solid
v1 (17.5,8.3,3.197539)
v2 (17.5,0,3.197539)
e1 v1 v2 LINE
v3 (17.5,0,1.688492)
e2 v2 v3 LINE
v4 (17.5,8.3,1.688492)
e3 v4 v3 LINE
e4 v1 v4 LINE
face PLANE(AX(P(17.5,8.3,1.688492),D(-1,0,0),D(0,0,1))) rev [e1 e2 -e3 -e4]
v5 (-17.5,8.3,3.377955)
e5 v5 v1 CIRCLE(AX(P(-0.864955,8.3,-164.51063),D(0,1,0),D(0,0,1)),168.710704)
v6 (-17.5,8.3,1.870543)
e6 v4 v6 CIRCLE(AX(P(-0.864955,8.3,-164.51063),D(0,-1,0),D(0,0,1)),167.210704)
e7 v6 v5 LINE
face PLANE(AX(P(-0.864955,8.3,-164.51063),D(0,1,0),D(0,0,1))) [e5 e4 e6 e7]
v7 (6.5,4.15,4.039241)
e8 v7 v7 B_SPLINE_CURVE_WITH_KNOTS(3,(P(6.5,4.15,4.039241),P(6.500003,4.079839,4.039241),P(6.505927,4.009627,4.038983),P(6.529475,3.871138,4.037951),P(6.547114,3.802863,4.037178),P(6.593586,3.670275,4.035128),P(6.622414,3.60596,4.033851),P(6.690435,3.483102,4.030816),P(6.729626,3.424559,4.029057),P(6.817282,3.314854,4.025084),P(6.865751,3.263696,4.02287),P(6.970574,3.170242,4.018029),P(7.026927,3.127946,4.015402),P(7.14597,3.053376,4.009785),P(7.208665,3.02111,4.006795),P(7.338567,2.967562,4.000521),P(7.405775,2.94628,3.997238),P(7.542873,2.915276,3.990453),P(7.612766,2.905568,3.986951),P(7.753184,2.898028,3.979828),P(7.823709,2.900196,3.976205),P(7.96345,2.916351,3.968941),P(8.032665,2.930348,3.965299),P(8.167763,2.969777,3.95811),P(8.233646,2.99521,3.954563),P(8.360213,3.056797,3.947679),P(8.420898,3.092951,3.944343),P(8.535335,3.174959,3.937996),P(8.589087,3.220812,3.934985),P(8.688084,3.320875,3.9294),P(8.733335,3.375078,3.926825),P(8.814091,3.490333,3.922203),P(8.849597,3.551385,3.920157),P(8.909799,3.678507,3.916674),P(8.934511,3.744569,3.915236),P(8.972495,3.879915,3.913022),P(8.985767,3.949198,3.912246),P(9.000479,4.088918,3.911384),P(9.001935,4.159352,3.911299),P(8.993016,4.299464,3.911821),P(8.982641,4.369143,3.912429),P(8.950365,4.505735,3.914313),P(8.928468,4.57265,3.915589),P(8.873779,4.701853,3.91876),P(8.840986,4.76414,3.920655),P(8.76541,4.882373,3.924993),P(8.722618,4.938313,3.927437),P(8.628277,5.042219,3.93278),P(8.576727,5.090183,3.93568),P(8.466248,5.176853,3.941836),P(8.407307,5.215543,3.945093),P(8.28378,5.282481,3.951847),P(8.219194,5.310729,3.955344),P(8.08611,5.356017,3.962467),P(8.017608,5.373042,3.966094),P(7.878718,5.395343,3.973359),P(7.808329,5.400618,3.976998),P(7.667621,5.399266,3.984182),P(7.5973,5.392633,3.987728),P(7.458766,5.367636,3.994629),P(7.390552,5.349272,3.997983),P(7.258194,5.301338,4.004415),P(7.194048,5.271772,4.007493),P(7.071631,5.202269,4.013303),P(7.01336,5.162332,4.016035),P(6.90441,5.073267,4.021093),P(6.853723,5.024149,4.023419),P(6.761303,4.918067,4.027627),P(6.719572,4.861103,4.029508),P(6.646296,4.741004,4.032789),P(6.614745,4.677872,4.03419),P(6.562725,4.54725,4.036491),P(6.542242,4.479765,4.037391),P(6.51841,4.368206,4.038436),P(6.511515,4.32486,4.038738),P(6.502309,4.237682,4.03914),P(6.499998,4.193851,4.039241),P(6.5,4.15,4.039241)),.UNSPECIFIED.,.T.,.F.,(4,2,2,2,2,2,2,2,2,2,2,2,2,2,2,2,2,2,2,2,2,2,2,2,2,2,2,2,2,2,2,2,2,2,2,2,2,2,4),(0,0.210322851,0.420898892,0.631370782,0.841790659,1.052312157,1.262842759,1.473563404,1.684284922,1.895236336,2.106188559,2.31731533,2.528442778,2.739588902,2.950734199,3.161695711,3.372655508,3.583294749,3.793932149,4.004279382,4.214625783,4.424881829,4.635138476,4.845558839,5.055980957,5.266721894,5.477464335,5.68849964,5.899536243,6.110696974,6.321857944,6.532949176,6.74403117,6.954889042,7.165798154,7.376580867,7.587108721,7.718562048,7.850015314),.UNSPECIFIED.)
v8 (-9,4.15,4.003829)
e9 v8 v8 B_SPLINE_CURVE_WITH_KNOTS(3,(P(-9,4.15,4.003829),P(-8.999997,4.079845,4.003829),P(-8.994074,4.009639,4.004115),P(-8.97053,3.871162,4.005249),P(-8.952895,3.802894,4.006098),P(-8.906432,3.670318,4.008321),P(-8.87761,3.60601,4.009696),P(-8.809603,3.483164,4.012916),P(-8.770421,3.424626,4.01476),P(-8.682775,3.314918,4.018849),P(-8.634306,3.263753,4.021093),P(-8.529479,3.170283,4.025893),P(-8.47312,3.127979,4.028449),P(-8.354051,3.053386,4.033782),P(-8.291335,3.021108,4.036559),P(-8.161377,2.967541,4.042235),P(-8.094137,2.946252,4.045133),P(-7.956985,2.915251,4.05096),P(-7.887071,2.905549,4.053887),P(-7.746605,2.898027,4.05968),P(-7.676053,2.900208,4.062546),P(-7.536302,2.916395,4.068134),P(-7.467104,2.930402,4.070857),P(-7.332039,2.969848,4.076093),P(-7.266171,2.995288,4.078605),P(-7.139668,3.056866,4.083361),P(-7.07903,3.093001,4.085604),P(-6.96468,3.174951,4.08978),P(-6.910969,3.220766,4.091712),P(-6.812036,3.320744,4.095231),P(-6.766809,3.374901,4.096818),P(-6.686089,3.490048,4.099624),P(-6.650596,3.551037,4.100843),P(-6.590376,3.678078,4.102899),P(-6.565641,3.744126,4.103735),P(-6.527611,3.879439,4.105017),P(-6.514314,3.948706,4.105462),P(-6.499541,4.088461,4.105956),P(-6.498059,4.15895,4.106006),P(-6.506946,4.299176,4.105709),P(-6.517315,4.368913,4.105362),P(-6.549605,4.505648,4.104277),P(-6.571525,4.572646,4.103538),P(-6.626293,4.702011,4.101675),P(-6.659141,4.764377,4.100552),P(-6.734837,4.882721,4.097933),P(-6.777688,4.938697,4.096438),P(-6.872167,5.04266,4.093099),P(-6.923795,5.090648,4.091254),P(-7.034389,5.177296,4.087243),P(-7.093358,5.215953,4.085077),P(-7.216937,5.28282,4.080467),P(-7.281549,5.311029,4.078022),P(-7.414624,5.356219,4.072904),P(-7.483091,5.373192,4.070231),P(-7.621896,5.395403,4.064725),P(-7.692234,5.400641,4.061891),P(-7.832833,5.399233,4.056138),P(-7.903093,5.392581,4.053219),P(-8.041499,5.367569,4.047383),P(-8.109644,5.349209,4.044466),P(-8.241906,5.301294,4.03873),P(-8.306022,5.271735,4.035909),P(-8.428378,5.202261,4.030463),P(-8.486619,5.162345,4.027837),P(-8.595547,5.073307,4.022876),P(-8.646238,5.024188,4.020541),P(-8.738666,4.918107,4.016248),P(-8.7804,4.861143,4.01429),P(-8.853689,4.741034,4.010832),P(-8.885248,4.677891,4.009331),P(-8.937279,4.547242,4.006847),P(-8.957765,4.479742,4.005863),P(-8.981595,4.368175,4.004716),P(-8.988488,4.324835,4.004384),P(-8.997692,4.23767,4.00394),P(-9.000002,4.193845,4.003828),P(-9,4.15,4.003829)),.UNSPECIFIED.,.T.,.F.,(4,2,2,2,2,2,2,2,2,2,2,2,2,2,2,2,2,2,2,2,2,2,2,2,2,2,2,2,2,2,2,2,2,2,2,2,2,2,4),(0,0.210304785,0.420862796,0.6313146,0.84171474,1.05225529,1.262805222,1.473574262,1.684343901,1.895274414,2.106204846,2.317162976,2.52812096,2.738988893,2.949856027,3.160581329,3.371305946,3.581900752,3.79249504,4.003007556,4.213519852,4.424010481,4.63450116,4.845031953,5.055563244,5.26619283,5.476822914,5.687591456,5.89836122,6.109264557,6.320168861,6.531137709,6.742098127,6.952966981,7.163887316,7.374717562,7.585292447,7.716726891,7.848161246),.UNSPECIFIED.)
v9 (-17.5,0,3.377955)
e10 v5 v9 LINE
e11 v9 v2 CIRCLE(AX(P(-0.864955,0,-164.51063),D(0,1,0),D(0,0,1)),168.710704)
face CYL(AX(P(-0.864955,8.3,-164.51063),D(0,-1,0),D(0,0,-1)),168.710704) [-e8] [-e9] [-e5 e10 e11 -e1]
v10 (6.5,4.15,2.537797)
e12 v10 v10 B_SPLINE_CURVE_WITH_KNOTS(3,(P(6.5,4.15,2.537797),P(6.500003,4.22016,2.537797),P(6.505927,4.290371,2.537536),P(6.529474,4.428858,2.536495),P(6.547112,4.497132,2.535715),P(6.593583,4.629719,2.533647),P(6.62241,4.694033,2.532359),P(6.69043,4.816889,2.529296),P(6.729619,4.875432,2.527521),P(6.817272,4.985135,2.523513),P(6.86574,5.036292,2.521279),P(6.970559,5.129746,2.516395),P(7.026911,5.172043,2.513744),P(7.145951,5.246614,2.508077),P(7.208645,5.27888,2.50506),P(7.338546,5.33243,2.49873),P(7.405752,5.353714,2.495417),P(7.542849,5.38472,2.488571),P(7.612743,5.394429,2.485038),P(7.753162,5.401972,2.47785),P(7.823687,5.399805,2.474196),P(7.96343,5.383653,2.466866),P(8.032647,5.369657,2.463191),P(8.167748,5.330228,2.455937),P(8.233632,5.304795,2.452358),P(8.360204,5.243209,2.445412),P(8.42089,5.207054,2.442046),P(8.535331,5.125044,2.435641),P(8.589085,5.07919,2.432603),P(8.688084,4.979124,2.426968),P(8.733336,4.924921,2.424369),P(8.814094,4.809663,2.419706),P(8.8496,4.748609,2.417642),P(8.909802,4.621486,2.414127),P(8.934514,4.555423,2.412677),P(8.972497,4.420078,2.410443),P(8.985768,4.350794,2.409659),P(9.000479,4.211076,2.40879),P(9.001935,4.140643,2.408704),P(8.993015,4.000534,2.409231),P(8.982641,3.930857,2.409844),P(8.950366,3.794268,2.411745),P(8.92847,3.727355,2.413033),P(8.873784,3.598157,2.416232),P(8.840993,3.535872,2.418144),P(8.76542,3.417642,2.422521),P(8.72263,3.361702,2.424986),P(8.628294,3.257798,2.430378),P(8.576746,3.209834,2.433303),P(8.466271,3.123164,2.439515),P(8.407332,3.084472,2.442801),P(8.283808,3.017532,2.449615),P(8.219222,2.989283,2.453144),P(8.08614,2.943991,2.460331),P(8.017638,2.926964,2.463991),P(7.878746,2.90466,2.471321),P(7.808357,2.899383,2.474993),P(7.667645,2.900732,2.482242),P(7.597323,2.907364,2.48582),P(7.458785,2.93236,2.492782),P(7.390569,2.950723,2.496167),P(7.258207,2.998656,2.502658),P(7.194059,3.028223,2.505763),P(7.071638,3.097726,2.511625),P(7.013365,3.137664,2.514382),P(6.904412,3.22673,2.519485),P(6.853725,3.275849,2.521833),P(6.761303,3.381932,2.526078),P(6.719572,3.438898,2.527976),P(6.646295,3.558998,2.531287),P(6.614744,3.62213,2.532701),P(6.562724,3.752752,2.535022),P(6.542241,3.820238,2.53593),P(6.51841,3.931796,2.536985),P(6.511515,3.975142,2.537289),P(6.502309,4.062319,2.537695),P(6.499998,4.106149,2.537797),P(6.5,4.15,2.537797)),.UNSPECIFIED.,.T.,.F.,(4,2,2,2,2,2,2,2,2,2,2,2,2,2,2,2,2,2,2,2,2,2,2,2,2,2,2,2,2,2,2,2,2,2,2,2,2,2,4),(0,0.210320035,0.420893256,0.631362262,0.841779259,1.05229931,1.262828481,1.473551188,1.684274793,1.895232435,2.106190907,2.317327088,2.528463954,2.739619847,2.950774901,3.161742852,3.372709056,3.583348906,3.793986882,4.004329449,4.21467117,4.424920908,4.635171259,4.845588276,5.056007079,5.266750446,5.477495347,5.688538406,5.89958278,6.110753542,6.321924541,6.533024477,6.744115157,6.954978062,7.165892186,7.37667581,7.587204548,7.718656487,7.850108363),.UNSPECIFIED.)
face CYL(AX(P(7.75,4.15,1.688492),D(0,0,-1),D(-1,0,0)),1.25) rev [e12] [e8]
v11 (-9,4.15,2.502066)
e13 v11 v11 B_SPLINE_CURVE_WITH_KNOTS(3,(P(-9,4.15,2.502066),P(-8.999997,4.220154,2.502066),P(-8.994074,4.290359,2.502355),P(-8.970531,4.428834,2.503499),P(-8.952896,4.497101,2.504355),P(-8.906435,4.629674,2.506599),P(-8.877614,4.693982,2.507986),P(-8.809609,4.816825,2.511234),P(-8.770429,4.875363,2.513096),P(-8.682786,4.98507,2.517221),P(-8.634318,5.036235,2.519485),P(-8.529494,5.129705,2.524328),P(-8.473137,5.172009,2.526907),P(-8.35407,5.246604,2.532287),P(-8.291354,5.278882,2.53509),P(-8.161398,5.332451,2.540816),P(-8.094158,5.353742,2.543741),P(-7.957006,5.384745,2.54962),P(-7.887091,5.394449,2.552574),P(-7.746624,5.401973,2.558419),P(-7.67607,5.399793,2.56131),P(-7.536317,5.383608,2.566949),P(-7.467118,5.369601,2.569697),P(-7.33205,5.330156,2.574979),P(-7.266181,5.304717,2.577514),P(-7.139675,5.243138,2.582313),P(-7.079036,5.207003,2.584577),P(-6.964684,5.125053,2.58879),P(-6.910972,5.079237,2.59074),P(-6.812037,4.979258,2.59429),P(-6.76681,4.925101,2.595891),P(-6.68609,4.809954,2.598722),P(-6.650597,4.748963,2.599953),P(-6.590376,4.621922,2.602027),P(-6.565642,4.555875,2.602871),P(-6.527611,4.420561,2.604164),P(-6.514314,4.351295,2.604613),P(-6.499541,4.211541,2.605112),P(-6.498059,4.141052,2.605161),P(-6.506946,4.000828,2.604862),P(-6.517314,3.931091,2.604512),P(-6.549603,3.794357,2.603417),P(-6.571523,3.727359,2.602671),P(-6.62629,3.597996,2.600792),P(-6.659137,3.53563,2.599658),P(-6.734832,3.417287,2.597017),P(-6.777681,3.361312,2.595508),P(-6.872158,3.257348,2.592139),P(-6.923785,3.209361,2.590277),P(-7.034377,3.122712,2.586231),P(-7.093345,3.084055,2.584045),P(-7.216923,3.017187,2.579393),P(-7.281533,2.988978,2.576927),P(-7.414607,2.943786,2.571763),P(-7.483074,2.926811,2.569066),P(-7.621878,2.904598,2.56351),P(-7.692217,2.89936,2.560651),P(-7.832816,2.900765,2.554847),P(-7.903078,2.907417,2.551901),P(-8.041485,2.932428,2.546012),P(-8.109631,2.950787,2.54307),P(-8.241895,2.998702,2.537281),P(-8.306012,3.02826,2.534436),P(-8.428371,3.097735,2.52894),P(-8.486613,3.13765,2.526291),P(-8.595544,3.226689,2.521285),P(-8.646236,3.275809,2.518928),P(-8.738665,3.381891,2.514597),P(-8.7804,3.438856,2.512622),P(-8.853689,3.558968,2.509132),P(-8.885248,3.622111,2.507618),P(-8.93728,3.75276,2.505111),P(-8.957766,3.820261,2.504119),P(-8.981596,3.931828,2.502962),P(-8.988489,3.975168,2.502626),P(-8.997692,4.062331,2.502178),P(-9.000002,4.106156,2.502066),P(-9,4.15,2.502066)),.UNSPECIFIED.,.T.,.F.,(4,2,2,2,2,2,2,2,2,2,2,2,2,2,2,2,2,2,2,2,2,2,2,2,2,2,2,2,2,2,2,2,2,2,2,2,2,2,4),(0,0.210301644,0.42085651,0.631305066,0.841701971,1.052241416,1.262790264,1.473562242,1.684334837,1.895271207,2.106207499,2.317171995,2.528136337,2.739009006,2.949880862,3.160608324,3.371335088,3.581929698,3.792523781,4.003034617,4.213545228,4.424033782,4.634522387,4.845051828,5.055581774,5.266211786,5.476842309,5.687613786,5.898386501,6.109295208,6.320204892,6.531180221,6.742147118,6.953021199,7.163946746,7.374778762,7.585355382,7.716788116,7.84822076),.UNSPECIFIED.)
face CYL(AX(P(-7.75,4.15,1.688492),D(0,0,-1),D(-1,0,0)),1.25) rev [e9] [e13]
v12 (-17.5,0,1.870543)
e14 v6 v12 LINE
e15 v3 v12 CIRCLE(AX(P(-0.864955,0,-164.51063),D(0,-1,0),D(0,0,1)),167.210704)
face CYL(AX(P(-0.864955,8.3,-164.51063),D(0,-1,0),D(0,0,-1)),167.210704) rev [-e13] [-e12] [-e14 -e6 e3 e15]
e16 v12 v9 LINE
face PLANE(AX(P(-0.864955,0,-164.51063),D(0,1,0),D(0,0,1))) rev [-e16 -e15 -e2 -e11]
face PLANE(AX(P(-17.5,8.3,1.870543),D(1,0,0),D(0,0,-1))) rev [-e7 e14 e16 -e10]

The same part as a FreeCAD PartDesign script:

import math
import FreeCAD as App
import Part
import Sketcher
from FreeCAD import Vector
Q = App.Units.Quantity

doc = App.newDocument("Part")
body = doc.addObject("PartDesign::Body", "Body")

sketch1 = body.newObject("Sketcher::SketchObject", "Sketch")
sketch1.AttachmentSupport = (doc.getObject("XZ_Plane"), [""])
sketch1.MapMode = "FlatFace"
sketch1.addGeometry(Part.LineSegment(Vector(17.5, 3.197539, 0), Vector(17.5, 1.688492, 0)), False)
sketch1.addGeometry(Part.ArcOfCircle(Part.Circle(Vector(-0.864955, -164.51063, 0), Vector(0, 0, 1), 167.210704), math.radians(83.694414), math.radians(95.709545)), False)
sketch1.addGeometry(Part.LineSegment(Vector(-17.5, 1.870543, 0), Vector(-17.5, 3.377955, 0)), False)
sketch1.addGeometry(Part.ArcOfCircle(Part.Circle(Vector(-0.864955, -164.51063, 0), Vector(0, 0, 1), 168.710704), math.radians(83.750701), math.radians(95.658616)), False)
sketch1.addConstraint(Sketcher.Constraint("Coincident", 0, 2, 1, 1))
sketch1.addConstraint(Sketcher.Constraint("Coincident", 1, 2, 2, 1))
sketch1.addConstraint(Sketcher.Constraint("Coincident", 2, 2, 3, 2))
sketch1.addConstraint(Sketcher.Constraint("Coincident", 3, 1, 0, 1))
sketch1.addConstraint(Sketcher.Constraint("Vertical", 0))
sketch1.addConstraint(Sketcher.Constraint("Vertical", 2))
sketch1.addConstraint(Sketcher.Constraint("Coincident", 3, 3, 1, 3))
sketch1.addConstraint(Sketcher.Constraint("DistanceX", 1, 2, 0, 2, Q("35 mm")))
sketch1.addConstraint(Sketcher.Constraint("DistanceX", -1, 1, 0, 2, Q("17.5 mm")))
sketch1.addConstraint(Sketcher.Constraint("Radius", 1, Q("167.210704 mm")))
sketch1.addConstraint(Sketcher.Constraint("Radius", 3, Q("168.710704 mm")))
sketch1.addConstraint(Sketcher.Constraint("DistanceY", 1, 3, -1, 1, Q("164.51063 mm")))
sketch1.addConstraint(Sketcher.Constraint("DistanceY", -1, 1, 0, 2, Q("1.688492 mm")))
pad1 = body.newObject("PartDesign::Pad", "Pad")
pad1.Profile = sketch1
pad1.Length = 8.3
pad1.Reversed = True

sketch2 = body.newObject("Sketcher::SketchObject", "Sketch001")
sketch2.AttachmentSupport = (doc.getObject("XY_Plane"), [""])
sketch2.MapMode = "FlatFace"
sketch2.addGeometry(Part.Circle(Vector(-7.75, 4.15, 0), Vector(0, 0, 1), 1.25), False)
sketch2.addGeometry(Part.Circle(Vector(7.75, 4.15, 0), Vector(0, 0, 1), 1.25), False)
sketch2.addConstraint(Sketcher.Constraint("Equal", 0, 1))
sketch2.addConstraint(Sketcher.Constraint("Symmetric", 0, 3, 1, 3, -2))
sketch2.addConstraint(Sketcher.Constraint("Diameter", 0, Q("2.5 mm")))
sketch2.addConstraint(Sketcher.Constraint("DistanceX", 0, 3, 1, 3, Q("15.5 mm")))
sketch2.addConstraint(Sketcher.Constraint("DistanceY", -1, 1, 0, 3, Q("4.15 mm")))
pocket1 = body.newObject("PartDesign::Pocket", "Pocket")
pocket1.Profile = sketch2
pocket1.Type = "ThroughAll"
pocket1.Midplane = True

doc.recompute()
